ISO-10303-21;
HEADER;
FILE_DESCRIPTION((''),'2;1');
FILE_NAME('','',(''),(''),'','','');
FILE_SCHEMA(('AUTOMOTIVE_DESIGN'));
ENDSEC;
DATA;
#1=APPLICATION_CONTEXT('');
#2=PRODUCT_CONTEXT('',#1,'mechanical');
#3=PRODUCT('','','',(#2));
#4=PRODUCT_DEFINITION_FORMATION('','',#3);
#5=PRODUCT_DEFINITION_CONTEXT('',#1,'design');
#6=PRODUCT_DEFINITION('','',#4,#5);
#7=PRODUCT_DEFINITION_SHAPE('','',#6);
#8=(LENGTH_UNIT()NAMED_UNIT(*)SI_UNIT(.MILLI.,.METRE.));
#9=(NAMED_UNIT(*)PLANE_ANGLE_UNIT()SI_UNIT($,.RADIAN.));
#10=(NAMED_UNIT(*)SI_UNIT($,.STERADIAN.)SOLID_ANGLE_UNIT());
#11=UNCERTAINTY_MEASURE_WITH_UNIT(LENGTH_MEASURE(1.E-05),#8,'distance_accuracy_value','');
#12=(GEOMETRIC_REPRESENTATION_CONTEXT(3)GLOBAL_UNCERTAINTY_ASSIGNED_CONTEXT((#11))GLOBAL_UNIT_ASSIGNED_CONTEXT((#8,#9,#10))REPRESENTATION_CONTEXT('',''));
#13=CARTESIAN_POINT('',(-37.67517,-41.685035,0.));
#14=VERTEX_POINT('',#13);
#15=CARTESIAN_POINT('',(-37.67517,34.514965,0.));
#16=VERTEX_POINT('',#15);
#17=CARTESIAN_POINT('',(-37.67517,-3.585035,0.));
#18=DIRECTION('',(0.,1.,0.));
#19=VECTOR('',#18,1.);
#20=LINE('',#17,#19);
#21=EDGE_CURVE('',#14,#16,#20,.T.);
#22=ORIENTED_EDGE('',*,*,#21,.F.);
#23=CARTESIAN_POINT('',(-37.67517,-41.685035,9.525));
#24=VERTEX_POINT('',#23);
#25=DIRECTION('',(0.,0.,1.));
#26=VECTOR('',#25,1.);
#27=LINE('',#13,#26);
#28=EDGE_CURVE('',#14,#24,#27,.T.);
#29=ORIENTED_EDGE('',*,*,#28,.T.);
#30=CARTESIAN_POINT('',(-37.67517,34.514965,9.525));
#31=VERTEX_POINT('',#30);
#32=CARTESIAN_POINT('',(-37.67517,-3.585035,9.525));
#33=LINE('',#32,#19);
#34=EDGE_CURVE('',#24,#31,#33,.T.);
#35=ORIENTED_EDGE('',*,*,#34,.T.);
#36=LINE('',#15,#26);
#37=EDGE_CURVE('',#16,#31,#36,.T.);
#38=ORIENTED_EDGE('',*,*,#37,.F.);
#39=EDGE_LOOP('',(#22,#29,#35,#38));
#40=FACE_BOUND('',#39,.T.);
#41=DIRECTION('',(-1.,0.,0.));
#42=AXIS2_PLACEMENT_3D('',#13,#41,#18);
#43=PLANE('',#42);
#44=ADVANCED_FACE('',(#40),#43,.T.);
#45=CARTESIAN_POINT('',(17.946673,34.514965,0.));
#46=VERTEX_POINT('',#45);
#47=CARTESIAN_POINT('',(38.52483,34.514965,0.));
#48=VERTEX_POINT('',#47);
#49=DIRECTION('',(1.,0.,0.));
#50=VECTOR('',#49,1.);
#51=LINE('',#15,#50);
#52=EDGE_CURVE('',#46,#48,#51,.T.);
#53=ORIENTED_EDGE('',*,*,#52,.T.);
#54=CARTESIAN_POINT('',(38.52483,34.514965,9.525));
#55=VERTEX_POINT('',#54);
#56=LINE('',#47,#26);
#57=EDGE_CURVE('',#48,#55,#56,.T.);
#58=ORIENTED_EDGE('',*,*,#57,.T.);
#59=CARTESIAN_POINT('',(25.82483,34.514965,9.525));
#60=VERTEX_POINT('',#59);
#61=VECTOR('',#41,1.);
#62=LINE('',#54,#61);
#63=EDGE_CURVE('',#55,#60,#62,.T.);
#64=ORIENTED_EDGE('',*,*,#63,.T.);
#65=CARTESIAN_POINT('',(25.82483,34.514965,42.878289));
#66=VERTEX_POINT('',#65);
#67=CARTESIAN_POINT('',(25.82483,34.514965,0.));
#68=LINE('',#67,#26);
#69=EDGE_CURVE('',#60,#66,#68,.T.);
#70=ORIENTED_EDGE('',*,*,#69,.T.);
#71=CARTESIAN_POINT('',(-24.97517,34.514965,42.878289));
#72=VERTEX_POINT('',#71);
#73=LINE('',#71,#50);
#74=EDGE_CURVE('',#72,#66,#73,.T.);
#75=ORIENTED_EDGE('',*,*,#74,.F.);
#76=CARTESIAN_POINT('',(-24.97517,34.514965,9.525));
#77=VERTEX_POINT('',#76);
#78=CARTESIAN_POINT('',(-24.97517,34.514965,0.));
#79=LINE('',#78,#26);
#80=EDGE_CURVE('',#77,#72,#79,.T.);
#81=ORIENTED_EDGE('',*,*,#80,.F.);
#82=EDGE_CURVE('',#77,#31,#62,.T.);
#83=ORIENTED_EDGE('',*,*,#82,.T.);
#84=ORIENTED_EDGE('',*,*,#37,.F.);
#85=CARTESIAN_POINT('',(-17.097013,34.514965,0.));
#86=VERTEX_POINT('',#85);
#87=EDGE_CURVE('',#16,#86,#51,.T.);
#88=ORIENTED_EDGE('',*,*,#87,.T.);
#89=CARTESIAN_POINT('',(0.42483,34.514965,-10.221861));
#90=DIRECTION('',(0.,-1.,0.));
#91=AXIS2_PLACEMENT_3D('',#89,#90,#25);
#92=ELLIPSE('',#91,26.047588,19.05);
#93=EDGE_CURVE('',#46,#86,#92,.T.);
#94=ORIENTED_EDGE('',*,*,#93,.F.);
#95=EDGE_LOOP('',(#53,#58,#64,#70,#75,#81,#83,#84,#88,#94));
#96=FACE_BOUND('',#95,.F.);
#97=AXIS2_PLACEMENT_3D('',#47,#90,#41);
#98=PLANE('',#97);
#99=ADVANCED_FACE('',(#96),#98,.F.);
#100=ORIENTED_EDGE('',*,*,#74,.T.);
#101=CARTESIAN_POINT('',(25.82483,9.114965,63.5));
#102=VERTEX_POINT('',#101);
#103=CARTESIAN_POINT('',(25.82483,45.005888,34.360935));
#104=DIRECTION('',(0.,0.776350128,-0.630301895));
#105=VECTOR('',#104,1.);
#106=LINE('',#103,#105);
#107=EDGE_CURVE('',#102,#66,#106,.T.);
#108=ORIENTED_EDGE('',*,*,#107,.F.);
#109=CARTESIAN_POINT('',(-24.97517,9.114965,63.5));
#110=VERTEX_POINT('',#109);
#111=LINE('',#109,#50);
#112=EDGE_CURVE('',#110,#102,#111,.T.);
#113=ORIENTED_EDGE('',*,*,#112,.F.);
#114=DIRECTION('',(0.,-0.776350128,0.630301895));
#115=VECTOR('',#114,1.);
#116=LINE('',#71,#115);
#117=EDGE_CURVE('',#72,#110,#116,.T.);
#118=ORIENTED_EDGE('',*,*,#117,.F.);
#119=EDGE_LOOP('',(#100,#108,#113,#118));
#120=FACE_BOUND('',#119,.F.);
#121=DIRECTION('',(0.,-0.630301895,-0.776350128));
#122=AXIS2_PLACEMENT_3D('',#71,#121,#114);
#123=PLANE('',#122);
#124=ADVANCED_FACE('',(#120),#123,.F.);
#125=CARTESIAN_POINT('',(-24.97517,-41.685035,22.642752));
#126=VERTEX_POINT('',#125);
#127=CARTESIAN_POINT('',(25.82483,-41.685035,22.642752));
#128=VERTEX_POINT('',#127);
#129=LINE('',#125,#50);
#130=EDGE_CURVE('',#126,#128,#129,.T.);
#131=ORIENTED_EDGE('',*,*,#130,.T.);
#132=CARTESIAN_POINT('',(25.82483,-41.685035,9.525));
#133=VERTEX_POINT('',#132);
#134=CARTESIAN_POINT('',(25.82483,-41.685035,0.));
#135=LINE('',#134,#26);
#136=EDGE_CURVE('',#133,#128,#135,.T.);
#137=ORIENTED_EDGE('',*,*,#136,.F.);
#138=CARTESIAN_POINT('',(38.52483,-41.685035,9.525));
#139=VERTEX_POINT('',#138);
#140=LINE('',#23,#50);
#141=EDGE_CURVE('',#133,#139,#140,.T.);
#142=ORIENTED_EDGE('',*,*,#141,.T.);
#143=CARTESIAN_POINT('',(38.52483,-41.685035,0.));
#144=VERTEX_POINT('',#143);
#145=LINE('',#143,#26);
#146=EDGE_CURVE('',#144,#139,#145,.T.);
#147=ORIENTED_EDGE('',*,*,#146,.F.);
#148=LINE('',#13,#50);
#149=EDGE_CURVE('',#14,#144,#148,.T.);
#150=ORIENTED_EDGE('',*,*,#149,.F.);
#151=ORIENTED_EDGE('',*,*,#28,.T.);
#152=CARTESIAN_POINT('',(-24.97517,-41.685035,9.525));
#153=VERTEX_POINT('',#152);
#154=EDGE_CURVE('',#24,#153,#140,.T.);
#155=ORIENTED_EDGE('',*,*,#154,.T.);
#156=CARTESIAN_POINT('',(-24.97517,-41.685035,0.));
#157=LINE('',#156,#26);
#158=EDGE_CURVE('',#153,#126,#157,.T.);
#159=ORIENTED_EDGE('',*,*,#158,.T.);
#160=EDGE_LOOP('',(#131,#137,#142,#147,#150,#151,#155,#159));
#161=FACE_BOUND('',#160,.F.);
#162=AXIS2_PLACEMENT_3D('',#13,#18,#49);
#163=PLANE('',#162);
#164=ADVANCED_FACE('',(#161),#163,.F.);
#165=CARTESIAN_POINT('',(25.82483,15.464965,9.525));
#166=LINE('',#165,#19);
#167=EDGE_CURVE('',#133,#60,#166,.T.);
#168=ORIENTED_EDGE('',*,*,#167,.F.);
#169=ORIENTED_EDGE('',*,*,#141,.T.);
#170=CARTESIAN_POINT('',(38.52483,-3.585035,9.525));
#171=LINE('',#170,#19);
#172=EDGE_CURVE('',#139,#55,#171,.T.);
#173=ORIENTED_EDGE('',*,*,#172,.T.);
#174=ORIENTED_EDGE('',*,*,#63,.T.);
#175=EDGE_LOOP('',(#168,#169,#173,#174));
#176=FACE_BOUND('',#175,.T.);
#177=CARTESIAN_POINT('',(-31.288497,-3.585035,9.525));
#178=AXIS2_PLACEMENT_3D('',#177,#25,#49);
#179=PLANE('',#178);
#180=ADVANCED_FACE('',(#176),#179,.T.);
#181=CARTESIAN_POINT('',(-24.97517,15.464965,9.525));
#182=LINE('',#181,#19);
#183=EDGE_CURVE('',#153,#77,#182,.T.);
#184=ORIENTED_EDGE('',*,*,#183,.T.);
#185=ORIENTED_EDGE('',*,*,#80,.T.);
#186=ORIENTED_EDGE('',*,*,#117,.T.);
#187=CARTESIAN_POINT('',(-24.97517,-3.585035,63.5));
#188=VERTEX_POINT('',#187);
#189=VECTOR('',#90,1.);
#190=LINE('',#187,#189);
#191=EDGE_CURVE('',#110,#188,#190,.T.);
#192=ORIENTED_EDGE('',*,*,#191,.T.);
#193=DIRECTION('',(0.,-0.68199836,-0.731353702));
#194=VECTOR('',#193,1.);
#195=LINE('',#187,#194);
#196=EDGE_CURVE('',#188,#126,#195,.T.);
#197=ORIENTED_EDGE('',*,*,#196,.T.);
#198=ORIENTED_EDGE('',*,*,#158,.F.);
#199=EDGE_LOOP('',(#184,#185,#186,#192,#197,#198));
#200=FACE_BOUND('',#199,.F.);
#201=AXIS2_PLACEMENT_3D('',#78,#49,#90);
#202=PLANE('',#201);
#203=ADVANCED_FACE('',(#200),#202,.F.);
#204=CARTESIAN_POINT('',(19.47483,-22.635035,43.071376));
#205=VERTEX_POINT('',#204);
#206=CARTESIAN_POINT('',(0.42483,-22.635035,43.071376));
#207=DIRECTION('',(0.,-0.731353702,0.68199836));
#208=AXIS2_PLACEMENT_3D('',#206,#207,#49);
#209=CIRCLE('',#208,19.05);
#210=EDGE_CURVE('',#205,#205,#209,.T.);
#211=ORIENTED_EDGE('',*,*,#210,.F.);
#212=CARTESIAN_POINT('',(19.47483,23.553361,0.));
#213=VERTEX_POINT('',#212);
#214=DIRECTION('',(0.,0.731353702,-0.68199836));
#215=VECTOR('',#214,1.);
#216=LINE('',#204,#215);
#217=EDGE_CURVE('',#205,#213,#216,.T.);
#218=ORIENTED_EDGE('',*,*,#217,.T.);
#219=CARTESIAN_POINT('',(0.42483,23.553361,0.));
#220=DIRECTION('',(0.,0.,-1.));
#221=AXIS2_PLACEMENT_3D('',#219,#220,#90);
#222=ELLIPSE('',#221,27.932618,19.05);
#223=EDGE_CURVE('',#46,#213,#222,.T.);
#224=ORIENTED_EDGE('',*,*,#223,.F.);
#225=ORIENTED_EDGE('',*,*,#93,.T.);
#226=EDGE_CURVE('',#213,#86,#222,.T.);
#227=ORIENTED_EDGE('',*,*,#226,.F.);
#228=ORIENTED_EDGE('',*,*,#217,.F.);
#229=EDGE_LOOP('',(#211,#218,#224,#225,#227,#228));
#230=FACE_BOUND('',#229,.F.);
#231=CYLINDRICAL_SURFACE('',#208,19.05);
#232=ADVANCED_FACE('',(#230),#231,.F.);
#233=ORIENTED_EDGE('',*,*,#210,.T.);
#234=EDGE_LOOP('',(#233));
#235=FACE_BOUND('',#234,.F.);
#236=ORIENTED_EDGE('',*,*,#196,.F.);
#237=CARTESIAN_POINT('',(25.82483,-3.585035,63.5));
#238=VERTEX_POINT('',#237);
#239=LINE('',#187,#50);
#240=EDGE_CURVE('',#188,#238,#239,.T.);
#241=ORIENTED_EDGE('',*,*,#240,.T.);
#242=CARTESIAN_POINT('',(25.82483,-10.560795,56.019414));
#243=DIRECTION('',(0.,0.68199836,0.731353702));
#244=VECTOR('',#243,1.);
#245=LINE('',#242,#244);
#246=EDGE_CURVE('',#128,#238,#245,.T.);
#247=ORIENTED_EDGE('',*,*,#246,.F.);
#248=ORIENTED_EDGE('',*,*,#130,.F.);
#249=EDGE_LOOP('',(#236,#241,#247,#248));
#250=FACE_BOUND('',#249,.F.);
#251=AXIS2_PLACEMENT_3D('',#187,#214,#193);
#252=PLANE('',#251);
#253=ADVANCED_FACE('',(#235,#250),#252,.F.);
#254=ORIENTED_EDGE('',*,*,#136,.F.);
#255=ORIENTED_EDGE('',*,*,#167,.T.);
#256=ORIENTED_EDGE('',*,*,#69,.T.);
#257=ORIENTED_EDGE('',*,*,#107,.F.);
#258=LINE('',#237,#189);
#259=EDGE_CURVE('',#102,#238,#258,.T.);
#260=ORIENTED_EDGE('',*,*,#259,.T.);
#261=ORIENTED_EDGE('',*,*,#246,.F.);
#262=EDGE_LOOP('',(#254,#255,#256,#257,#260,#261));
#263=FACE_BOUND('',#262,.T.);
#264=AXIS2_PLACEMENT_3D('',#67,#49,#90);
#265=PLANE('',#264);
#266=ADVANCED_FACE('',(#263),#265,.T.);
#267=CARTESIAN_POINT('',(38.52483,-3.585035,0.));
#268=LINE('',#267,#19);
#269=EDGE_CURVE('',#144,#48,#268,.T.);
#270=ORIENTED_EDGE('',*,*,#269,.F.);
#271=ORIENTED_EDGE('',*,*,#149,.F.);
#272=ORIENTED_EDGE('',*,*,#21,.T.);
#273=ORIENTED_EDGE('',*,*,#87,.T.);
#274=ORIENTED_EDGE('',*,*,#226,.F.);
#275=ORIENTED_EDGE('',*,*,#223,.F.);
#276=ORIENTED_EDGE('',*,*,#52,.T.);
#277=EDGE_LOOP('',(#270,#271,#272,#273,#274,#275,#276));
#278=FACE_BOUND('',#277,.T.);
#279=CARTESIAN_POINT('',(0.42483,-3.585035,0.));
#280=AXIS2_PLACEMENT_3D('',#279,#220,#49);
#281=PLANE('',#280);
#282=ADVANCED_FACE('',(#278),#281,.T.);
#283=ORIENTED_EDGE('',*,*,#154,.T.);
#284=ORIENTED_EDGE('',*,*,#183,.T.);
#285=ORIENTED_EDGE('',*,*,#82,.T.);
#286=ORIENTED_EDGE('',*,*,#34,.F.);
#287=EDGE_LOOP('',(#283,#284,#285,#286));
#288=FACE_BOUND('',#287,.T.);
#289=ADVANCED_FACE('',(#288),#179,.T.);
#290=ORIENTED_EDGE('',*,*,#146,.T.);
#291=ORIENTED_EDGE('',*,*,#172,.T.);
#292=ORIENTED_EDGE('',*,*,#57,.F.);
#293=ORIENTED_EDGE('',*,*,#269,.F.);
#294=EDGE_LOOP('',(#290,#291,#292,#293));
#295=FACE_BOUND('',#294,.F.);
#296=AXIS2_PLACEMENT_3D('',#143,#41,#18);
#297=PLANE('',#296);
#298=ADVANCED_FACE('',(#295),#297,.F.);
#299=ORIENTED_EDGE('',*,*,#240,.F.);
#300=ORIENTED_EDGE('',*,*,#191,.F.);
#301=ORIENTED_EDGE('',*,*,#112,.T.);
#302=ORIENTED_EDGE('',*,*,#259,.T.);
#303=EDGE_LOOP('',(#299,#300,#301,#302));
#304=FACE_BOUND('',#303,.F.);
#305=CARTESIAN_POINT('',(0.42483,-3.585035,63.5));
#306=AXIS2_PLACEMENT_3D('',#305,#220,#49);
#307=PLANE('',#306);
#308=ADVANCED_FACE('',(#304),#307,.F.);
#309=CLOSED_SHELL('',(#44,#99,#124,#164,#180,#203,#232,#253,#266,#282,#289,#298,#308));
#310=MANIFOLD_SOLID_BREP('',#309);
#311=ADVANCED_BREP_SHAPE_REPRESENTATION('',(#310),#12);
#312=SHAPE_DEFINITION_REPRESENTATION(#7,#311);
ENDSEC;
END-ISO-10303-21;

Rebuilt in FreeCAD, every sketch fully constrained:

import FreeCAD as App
import Part
import Sketcher
from FreeCAD import Vector
Q = App.Units.Quantity


def add_polygon(sketch, points):
    """Adds a closed chain of lines whose ends are joined by coincident constraints."""
    first, n = sketch.GeometryCount, len(points)
    for a, b in zip(points, points[1:] + points[:1]):
        sketch.addGeometry(Part.LineSegment(App.Vector(*a, 0), App.Vector(*b, 0)), False)
    for i in range(n):
        sketch.addConstraint(Sketcher.Constraint("Coincident", first + i, 2, first + (i + 1) % n, 1))

doc = App.newDocument("Part")
params = doc.addObject("Spreadsheet::Sheet", "Params")
for row, (alias, value) in enumerate([
    ("sketch1_width", "3 in"),
    ("pad1_length", "0.375 in"),
    ("sketch2_width", "2 in"),
    ("sketch2_height", "3 in"),
    ("pad2_length", "2.5 in"),
    ("sketch3_width", "1 in"),
    ("sketch3_width2", "1.5 in"),
    ("pocket1_length", "4.24 in"),
    ("sketch4_diameter", "1.5 in"),
    ("pocket2_length", "3.53 in"),
], start=1):
    params.set(f"A{row}", alias)
    params.set(f"B{row}", "=" + value)
    params.setAlias(f"B{row}", alias)

body = doc.addObject("PartDesign::Body", "Body")

# Sketch on XY plane
sketch1 = doc.addObject("Sketcher::SketchObject", "Sketch")
body.addObject(sketch1)
sketch1.AttachmentSupport = (doc.XY_Plane, [""])
sketch1.MapMode = "FlatFace"
add_polygon(sketch1, [(-38, 35), (-38, -42), (39, -42), (39, 35)])  # lines 0-3
sketch1.addConstraint([
    Sketcher.Constraint("Vertical", 0),
    Sketcher.Constraint("Horizontal", 1),
    Sketcher.Constraint("Vertical", 2),
    Sketcher.Constraint("Horizontal", 3),
    Sketcher.Constraint("Equal", 3, 0),
    Sketcher.Constraint("DistanceX", 1, 1, 1, 2, Q("3 in")),
    Sketcher.Constraint("DistanceX", 0, 2, -1, 1, Q("37.67517 mm")),
    Sketcher.Constraint("DistanceY", 0, 2, -1, 1, Q("41.685035 mm")),
])
sketch1.setExpression("Constraints[9]", "Params.sketch1_width")
pad1 = doc.addObject("PartDesign::Pad", "Pad")
body.addObject(pad1)
pad1.Profile = sketch1
pad1.setExpression("Length", "Params.pad1_length")

# Sketch on XY plane
sketch2 = doc.addObject("Sketcher::SketchObject", "Sketch001")
body.addObject(sketch2)
sketch2.AttachmentSupport = (doc.XY_Plane, [""])
sketch2.MapMode = "FlatFace"
add_polygon(sketch2, [(-25, -42), (-25, 35), (26, 35), (26, -42)])  # lines 0-3
sketch2.addConstraint([
    Sketcher.Constraint("Vertical", 0),
    Sketcher.Constraint("Horizontal", 1),
    Sketcher.Constraint("Vertical", 2),
    Sketcher.Constraint("Horizontal", 3),
    Sketcher.Constraint("DistanceX", 1, 1, 1, 2, Q("2 in")),
    Sketcher.Constraint("DistanceY", 0, 1, 0, 2, Q("3 in")),
    Sketcher.Constraint("DistanceX", 0, 2, -1, 1, Q("24.97517 mm")),
    Sketcher.Constraint("DistanceY", -1, 1, 0, 2, Q("34.514965 mm")),
])
sketch2.setExpression("Constraints[8]", "Params.sketch2_width")
sketch2.setExpression("Constraints[9]", "Params.sketch2_height")
pad2 = doc.addObject("PartDesign::Pad", "Pad001")
body.addObject(pad2)
pad2.Profile = sketch2
pad2.setExpression("Length", "Params.pad2_length")

# Sketch on YZ plane
sketch3 = doc.addObject("Sketcher::SketchObject", "Sketch002")
body.addObject(sketch3)
sketch3.AttachmentSupport = (doc.YZ_Plane, [""])
sketch3.MapMode = "FlatFace"
sketch3.AttachmentOffset = App.Placement(Vector(0, 0, -24.97517), App.Rotation())
add_polygon(sketch3, [(35, 64), (35, 43), (9, 64)])  # lines 0-2
add_polygon(sketch3, [(-42, 64), (-4, 64), (-42, 23)])  # lines 3-5
sketch3.addConstraint([
    Sketcher.Constraint("Vertical", 0),
    Sketcher.Constraint("Horizontal", 2),
    Sketcher.Constraint("Horizontal", 3),
    Sketcher.Constraint("Vertical", 5),
    Sketcher.Constraint("Horizontal", 2, 2, 3, 2),
    Sketcher.Constraint("DistanceX", 2, 1, 2, 2, Q("1 in")),
    Sketcher.Constraint("DistanceX", 3, 1, 3, 2, Q("1.5 in")),
    Sketcher.Constraint("Angle", 4, Q("-133 deg")),
    Sketcher.Constraint("DistanceX", 4, 2, 1, 2, Q("2 in")),
    Sketcher.Constraint("DistanceY", -1, 1, 1, 2, Q("2.5 in")),
    Sketcher.Constraint("DistanceY", 0, 2, 0, 1, Q("20.621711 mm")),
    Sketcher.Constraint("DistanceX", -1, 1, 0, 2, Q("34.514965 mm")),
])
sketch3.setExpression("Constraints[11]", "Params.sketch3_width")
sketch3.setExpression("Constraints[12]", "Params.sketch3_width2")
pocket1 = doc.addObject("PartDesign::Pocket", "Pocket")
body.addObject(pocket1)
pocket1.Profile = sketch3
pocket1.setExpression("Length", "Params.pocket1_length")
pocket1.Reversed = True

# Sketch on an angled plane
sketch4 = doc.addObject("Sketcher::SketchObject", "Sketch003")
body.addObject(sketch4)
sketch4.Placement = App.Placement(Vector(0, -33.590216, 31.323383), App.Rotation(Vector(1, 0, 0), Vector(0, 0.68199836, 0.731353702), Vector(0, -0.731353702, 0.68199836), "ZXY"))
sketch4.addGeometry(Part.Circle(Vector(0, 16, 0), Vector(0, 0, 1), 19), False)
sketch4.addConstraint([
    Sketcher.Constraint("Diameter", 0, Q("1.5 in")),
    Sketcher.Constraint("DistanceX", -1, 1, 0, 3, Q("0.42483 mm")),
    Sketcher.Constraint("DistanceY", -1, 1, 0, 3, Q("16.063353 mm")),
])
sketch4.setExpression("Constraints[0]", "Params.sketch4_diameter")
pocket2 = doc.addObject("PartDesign::Pocket", "Pocket001")
body.addObject(pocket2)
pocket2.Profile = sketch4
pocket2.setExpression("Length", "Params.pocket2_length")

doc.recompute()
